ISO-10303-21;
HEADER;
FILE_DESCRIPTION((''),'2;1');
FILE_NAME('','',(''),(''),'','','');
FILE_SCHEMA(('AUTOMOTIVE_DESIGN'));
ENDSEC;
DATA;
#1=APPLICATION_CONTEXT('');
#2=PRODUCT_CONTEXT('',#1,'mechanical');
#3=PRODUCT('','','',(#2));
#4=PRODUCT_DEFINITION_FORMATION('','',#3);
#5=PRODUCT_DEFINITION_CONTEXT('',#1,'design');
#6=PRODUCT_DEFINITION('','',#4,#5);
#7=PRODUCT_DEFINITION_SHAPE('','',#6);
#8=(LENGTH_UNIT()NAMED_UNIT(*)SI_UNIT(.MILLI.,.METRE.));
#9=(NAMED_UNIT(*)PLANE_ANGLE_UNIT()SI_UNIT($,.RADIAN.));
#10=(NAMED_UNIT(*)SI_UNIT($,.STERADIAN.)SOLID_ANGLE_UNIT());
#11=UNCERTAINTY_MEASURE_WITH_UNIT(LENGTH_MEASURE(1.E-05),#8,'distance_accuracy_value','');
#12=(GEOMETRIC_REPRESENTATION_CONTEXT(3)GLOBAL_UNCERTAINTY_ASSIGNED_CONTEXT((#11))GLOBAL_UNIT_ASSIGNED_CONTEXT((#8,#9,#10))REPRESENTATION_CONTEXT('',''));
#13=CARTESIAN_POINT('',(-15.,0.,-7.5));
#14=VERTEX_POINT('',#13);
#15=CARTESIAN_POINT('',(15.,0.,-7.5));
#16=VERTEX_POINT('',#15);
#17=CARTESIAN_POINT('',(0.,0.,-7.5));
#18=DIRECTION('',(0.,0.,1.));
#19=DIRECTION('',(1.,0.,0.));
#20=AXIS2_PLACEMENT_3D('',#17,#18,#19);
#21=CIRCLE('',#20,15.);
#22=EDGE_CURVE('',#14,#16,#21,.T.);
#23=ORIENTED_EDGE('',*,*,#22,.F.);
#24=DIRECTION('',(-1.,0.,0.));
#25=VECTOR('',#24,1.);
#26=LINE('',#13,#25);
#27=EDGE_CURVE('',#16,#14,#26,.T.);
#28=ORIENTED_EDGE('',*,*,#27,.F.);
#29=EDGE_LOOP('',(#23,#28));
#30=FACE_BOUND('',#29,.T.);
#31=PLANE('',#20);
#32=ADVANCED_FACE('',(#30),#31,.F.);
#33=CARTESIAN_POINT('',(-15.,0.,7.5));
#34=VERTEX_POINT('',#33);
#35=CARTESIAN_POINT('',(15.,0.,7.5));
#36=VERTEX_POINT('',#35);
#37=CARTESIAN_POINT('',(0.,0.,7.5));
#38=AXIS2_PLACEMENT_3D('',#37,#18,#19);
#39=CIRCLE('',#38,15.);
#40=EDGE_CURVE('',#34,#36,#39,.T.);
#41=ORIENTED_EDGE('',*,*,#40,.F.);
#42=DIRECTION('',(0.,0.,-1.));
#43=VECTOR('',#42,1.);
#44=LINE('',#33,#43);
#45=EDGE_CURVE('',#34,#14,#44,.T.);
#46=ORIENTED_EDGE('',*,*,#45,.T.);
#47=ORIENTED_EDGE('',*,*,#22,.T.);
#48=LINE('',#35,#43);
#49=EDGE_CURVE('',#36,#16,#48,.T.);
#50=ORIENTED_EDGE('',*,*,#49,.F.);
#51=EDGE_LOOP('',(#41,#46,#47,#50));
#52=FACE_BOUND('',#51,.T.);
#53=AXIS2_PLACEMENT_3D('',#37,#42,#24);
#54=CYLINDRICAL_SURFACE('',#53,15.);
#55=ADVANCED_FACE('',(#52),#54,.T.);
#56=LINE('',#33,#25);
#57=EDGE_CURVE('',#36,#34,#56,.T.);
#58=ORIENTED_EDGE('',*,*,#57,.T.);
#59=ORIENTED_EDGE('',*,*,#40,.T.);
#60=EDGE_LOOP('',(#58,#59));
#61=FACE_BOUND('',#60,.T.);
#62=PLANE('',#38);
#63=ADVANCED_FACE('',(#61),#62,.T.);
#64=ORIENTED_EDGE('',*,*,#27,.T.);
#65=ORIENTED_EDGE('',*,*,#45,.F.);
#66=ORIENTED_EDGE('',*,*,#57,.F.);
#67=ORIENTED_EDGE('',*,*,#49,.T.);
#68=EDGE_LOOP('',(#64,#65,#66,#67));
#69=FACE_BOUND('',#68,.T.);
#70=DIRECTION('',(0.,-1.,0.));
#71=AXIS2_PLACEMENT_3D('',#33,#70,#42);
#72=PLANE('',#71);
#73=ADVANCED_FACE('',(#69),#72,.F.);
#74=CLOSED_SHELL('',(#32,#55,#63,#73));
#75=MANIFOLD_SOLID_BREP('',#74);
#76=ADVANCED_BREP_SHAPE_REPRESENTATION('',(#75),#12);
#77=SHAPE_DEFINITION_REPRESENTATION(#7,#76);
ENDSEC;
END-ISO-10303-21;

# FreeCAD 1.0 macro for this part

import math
import FreeCAD as App
import Part
import Sketcher
Q = App.Units.Quantity

doc = App.newDocument("Part")
body = doc.addObject("PartDesign::Body", "Body")

sketch1 = body.newObject("Sketcher::SketchObject", "Sketch")
sketch1.AttachmentSupport = (doc.getObject("XY_Plane"), [""])
sketch1.MapMode = "FlatFace"
sketch1.addGeometry([
    Part.LineSegment(App.Vector(15, 0, 0), App.Vector(-15, 0, 0)),
    Part.ArcOfCircle(Part.Circle(App.Vector(0, 0, 0), App.Vector(0, 0, 1), 15), math.radians(180), math.radians(360)),
], False)
sketch1.addConstraint([
    Sketcher.Constraint("Coincident", 0, 1, 1, 2),
    Sketcher.Constraint("Coincident", 1, 1, 0, 2),
    Sketcher.Constraint("Horizontal", 0),
    Sketcher.Constraint("Coincident", 1, 3, -1, 1),
    Sketcher.Constraint("PointOnObject", 0, 1, -1),
    Sketcher.Constraint("Radius", 1, Q("15 mm")),
])
pad1 = body.newObject("PartDesign::Pad", "Pad")
pad1.Profile = sketch1
pad1.Length = 15
pad1.Midplane = True

doc.recompute()
